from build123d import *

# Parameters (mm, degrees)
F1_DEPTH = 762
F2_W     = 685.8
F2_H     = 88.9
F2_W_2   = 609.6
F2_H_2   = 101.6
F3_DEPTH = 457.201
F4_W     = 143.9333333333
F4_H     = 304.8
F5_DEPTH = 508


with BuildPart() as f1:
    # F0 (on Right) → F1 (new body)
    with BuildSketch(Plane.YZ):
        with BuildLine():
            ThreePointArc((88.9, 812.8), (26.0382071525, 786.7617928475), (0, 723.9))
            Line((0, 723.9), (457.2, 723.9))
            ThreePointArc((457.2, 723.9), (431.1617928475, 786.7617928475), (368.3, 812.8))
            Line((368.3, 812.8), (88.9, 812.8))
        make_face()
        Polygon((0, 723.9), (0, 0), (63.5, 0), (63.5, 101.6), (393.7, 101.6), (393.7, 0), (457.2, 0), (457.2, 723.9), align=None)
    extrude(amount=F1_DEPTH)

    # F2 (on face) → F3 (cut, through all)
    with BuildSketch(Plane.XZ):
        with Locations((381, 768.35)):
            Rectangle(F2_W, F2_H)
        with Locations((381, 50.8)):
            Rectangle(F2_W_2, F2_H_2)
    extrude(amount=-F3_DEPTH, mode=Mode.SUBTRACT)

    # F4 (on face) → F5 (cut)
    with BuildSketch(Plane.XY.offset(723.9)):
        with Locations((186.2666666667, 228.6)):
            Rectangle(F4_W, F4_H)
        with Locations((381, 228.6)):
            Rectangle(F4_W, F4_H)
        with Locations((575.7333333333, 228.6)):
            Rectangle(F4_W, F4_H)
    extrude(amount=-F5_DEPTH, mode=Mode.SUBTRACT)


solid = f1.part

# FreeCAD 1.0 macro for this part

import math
import FreeCAD as App
import Part
import Sketcher
Q = App.Units.Quantity


def add_polygon(sketch, points):
    """Adds a closed chain of lines whose ends are joined by coincident constraints."""
    first, n = sketch.GeometryCount, len(points)
    for a, b in zip(points, points[1:] + points[:1]):
        sketch.addGeometry(Part.LineSegment(App.Vector(*a, 0), App.Vector(*b, 0)), False)
    for i in range(n):
        sketch.addConstraint(Sketcher.Constraint("Coincident", first + i, 2, first + (i + 1) % n, 1))

doc = App.newDocument("Part")
body = doc.addObject("PartDesign::Body", "Body")

# Sketch on YZ plane
sketch1 = body.newObject("Sketcher::SketchObject", "Sketch")
sketch1.AttachmentSupport = (doc.getObject("YZ_Plane"), [""])
sketch1.MapMode = "FlatFace"
sketch1.addGeometry(Part.ArcOfCircle(Part.Circle(App.Vector(88.9, 723.9, 0), App.Vector(0, 0, 1), 88.9), math.radians(90), math.radians(180)), False)
sketch1.addGeometry(Part.LineSegment(App.Vector(0, 723.9, 0), App.Vector(0, 0, 0)), False)
sketch1.addGeometry(Part.LineSegment(App.Vector(0, 0, 0), App.Vector(63.5, 0, 0)), False)
sketch1.addGeometry(Part.LineSegment(App.Vector(63.5, 0, 0), App.Vector(63.5, 101.6, 0)), False)
sketch1.addGeometry(Part.LineSegment(App.Vector(63.5, 101.6, 0), App.Vector(393.7, 101.6, 0)), False)
sketch1.addGeometry(Part.LineSegment(App.Vector(393.7, 101.6, 0), App.Vector(393.7, 0, 0)), False)
sketch1.addGeometry(Part.LineSegment(App.Vector(393.7, 0, 0), App.Vector(457.2, 0, 0)), False)
sketch1.addGeometry(Part.LineSegment(App.Vector(457.2, 0, 0), App.Vector(457.2, 723.9, 0)), False)
sketch1.addGeometry(Part.ArcOfCircle(Part.Circle(App.Vector(368.3, 723.9, 0), App.Vector(0, 0, 1), 88.9), math.radians(0), math.radians(90)), False)
sketch1.addGeometry(Part.LineSegment(App.Vector(368.3, 812.8, 0), App.Vector(88.9, 812.8, 0)), False)
sketch1.addConstraint(Sketcher.Constraint("Tangent", 0, 2, 1, 1))
sketch1.addConstraint(Sketcher.Constraint("Coincident", 1, 2, 2, 1))
sketch1.addConstraint(Sketcher.Constraint("Coincident", 2, 2, 3, 1))
sketch1.addConstraint(Sketcher.Constraint("Coincident", 3, 2, 4, 1))
sketch1.addConstraint(Sketcher.Constraint("Coincident", 4, 2, 5, 1))
sketch1.addConstraint(Sketcher.Constraint("Coincident", 5, 2, 6, 1))
sketch1.addConstraint(Sketcher.Constraint("Coincident", 6, 2, 7, 1))
sketch1.addConstraint(Sketcher.Constraint("Tangent", 7, 2, 8, 1))
sketch1.addConstraint(Sketcher.Constraint("Tangent", 8, 2, 9, 1))
sketch1.addConstraint(Sketcher.Constraint("Tangent", 9, 2, 0, 1))
sketch1.addConstraint(Sketcher.Constraint("Vertical", 1))
sketch1.addConstraint(Sketcher.Constraint("Horizontal", 2))
sketch1.addConstraint(Sketcher.Constraint("Vertical", 3))
sketch1.addConstraint(Sketcher.Constraint("Horizontal", 4))
sketch1.addConstraint(Sketcher.Constraint("Vertical", 5))
sketch1.addConstraint(Sketcher.Constraint("Horizontal", 6))
sketch1.addConstraint(Sketcher.Constraint("Vertical", 7))
sketch1.addConstraint(Sketcher.Constraint("Horizontal", 9))
sketch1.addConstraint(Sketcher.Constraint("Coincident", 1, 2, -1, 1))
sketch1.addConstraint(Sketcher.Constraint("Equal", 0, 8))
sketch1.addConstraint(Sketcher.Constraint("PointOnObject", 5, 2, -1))
sketch1.addConstraint(Sketcher.Constraint("Equal", 2, 6))
sketch1.addConstraint(Sketcher.Constraint("Radius", 0, Q("3.5 in")))
sketch1.addConstraint(Sketcher.Constraint("DistanceX", 4, 1, 4, 2, Q("13 in")))
sketch1.addConstraint(Sketcher.Constraint("DistanceX", 9, 2, 9, 1, Q("11 in")))
sketch1.addConstraint(Sketcher.Constraint("DistanceY", 3, 1, 3, 2, Q("4 in")))
sketch1.addConstraint(Sketcher.Constraint("DistanceY", 1, 2, 1, 1, Q("28.5 in")))
pad1 = body.newObject("PartDesign::Pad", "Pad")
pad1.Profile = sketch1
pad1.Length = Q("30 in")

# Sketch on XZ plane
sketch2 = body.newObject("Sketcher::SketchObject", "Sketch001")
sketch2.AttachmentSupport = (doc.getObject("XZ_Plane"), [""])
sketch2.MapMode = "FlatFace"
add_polygon(sketch2, [(38.1, 812.8), (38.1, 723.9), (723.9, 723.9), (723.9, 812.8)])  # lines 0-3
add_polygon(sketch2, [(76.2, 101.6), (76.2, 0), (685.8, 0), (685.8, 101.6)])  # lines 4-7
sketch2.addConstraint(Sketcher.Constraint("Vertical", 0))
sketch2.addConstraint(Sketcher.Constraint("Horizontal", 1))
sketch2.addConstraint(Sketcher.Constraint("Vertical", 2))
sketch2.addConstraint(Sketcher.Constraint("Horizontal", 3))
sketch2.addConstraint(Sketcher.Constraint("Vertical", 4))
sketch2.addConstraint(Sketcher.Constraint("Horizontal", 5))
sketch2.addConstraint(Sketcher.Constraint("Vertical", 6))
sketch2.addConstraint(Sketcher.Constraint("Horizontal", 7))
sketch2.addConstraint(Sketcher.Constraint("PointOnObject", 4, 2, -1))
sketch2.addConstraint(Sketcher.Constraint("DistanceX", 1, 1, 1, 2, Q("27 in")))
sketch2.addConstraint(Sketcher.Constraint("DistanceX", 5, 1, 5, 2, Q("24 in")))
sketch2.addConstraint(Sketcher.Constraint("DistanceY", 4, 2, 4, 1, Q("4 in")))
sketch2.addConstraint(Sketcher.Constraint("DistanceY", 0, 2, 0, 1, Q("3.5 in")))
sketch2.addConstraint(Sketcher.Constraint("DistanceY", -1, 1, 2, 2, Q("32 in")))
sketch2.addConstraint(Sketcher.Constraint("DistanceX", -1, 1, 4, 2, Q("3 in")))
sketch2.addConstraint(Sketcher.Constraint("DistanceX", -1, 1, 0, 2, Q("1.5 in")))
pocket1 = body.newObject("PartDesign::Pocket", "Pocket")
pocket1.Profile = sketch2
pocket1.Type = "ThroughAll"

# Sketch on XY plane
sketch3 = body.newObject("Sketcher::SketchObject", "Sketch002")
sketch3.AttachmentSupport = (doc.getObject("XY_Plane"), [""])
sketch3.MapMode = "FlatFace"
sketch3.AttachmentOffset = App.Placement(App.Vector(0, 0, 28.5 * 25.4), App.Rotation())
add_polygon(sketch3, [(114.3, 381), (114.3, 76.2), (258.233333, 76.2), (258.233333, 381)])  # lines 0-3
add_polygon(sketch3, [(309.033333, 381), (309.033333, 76.2), (452.966667, 76.2), (452.966667, 381)])  # lines 4-7
add_polygon(sketch3, [(503.766667, 381), (503.766667, 76.2), (647.7, 76.2), (647.7, 381)])  # lines 8-11
sketch3.addConstraint(Sketcher.Constraint("Vertical", 0))
sketch3.addConstraint(Sketcher.Constraint("Horizontal", 1))
sketch3.addConstraint(Sketcher.Constraint("Vertical", 2))
sketch3.addConstraint(Sketcher.Constraint("Horizontal", 3))
sketch3.addConstraint(Sketcher.Constraint("Vertical", 4))
sketch3.addConstraint(Sketcher.Constraint("Horizontal", 5))
sketch3.addConstraint(Sketcher.Constraint("Vertical", 6))
sketch3.addConstraint(Sketcher.Constraint("Horizontal", 7))
sketch3.addConstraint(Sketcher.Constraint("Vertical", 8))
sketch3.addConstraint(Sketcher.Constraint("Horizontal", 9))
sketch3.addConstraint(Sketcher.Constraint("Vertical", 10))
sketch3.addConstraint(Sketcher.Constraint("Horizontal", 11))
sketch3.addConstraint(Sketcher.Constraint("Horizontal", 1, 2, 4, 2))
sketch3.addConstraint(Sketcher.Constraint("Horizontal", 3, 2, 6, 2))
sketch3.addConstraint(Sketcher.Constraint("Horizontal", 5, 2, 8, 2))
sketch3.addConstraint(Sketcher.Constraint("Horizontal", 7, 2, 10, 2))
sketch3.addConstraint(Sketcher.Constraint("Equal", 3, 5))
sketch3.addConstraint(Sketcher.Constraint("Equal", 7, 9))
sketch3.addConstraint(Sketcher.Constraint("DistanceY", 0, 2, 0, 1, Q("12 in")))
sketch3.addConstraint(Sketcher.Constraint("DistanceY", -1, 1, 0, 2, Q("3 in")))
sketch3.addConstraint(Sketcher.Constraint("DistanceX", 1, 2, 4, 2, Q("2 in")))
sketch3.addConstraint(Sketcher.Constraint("DistanceX", 5, 2, 8, 2, Q("2 in")))
sketch3.addConstraint(Sketcher.Constraint("DistanceX", -1, 1, 0, 2, Q("4.5 in")))
sketch3.addConstraint(Sketcher.Constraint("DistanceX", -1, 1, 9, 2, Q("25.5 in")))
pocket2 = body.newObject("PartDesign::Pocket", "Pocket001")
pocket2.Profile = sketch3
pocket2.Length = Q("20 in")

doc.recompute()
